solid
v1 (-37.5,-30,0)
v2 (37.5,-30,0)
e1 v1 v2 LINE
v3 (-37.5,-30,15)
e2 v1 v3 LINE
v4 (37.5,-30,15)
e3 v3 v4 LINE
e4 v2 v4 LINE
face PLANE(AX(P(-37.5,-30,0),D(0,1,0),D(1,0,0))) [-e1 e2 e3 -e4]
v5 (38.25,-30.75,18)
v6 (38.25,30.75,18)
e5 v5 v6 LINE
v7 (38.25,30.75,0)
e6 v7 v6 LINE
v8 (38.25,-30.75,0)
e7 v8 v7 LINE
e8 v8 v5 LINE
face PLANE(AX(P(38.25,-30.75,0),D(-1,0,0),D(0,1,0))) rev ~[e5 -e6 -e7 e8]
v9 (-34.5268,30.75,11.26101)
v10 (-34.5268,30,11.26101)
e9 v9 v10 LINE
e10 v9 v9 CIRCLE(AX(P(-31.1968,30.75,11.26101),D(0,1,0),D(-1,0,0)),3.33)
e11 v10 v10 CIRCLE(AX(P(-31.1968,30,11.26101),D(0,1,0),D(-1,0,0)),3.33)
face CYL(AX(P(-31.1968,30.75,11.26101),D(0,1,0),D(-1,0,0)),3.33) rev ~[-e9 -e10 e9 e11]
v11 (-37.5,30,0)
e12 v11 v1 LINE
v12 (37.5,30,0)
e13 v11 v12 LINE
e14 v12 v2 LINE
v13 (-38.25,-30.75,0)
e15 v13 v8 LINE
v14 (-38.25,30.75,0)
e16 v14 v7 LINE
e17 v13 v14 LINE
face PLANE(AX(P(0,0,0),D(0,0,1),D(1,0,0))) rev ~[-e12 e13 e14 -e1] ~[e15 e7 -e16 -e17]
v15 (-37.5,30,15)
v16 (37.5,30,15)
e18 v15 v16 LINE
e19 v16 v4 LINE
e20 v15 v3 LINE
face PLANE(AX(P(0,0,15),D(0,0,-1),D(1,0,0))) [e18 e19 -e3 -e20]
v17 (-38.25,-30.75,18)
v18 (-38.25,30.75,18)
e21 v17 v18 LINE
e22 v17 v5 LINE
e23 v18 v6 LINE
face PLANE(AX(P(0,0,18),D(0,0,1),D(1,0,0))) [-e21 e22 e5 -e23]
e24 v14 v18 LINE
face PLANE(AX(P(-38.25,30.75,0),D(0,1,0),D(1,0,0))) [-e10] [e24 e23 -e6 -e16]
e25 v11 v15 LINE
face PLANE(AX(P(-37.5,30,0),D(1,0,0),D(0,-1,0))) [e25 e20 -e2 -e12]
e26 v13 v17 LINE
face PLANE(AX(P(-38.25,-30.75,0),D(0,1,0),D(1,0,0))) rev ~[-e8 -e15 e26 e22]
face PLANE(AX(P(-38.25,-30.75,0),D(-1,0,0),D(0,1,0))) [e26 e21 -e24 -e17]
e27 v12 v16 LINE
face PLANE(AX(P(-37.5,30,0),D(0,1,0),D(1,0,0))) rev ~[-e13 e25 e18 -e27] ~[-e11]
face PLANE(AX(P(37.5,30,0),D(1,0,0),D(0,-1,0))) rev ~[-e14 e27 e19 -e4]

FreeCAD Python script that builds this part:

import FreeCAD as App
import Part
import Sketcher

V = App.Vector


def add_polygon(sketch, points):
    """Adds a closed chain of lines whose ends are joined by coincident constraints."""
    first, n = sketch.GeometryCount, len(points)
    for a, b in zip(points, points[1:] + points[:1]):
        sketch.addGeometry(Part.LineSegment(App.Vector(*a, 0), App.Vector(*b, 0)), False)
    for i in range(n):
        sketch.addConstraint(Sketcher.Constraint("Coincident", first + i, 2, first + (i + 1) % n, 1))

doc = App.newDocument("Part")
params = doc.addObject("Spreadsheet::Sheet", "Params")
for row, (alias, value) in enumerate([
    ("sketch1_width", "76.5 mm"),
    ("sketch1_height", "61.5 mm"),
    ("pad1_length", "18 mm"),
    ("sketch2_width", "75 mm"),
    ("sketch2_height", "60 mm"),
    ("pocket1_length", "15 mm"),
    ("sketch3_diameter", "6.66 mm"),
    ("pocket2_length", "5 mm"),
], start=1):
    params.set(f"A{row}", alias)
    params.set(f"B{row}", "=" + value)
    params.setAlias(f"B{row}", alias)

body = doc.addObject("PartDesign::Body", "Body")

sketch1 = doc.addObject("Sketcher::SketchObject", "Sketch")
body.addObject(sketch1)
sketch1.AttachmentSupport = (doc.XY_Plane, [""])
sketch1.MapMode = "FlatFace"
add_polygon(sketch1, [(-38.25, 30.75), (-38.25, -30.75), (38.25, -30.75), (38.25, 30.75)])
sketch1.addConstraint([
    Sketcher.Constraint("Vertical", 0),
    Sketcher.Constraint("Horizontal", 1),
    Sketcher.Constraint("Vertical", 2),
    Sketcher.Constraint("Horizontal", 3),
    Sketcher.Constraint("Symmetric", 0, 2, 2, 2, -1, 1),
    Sketcher.Constraint("DistanceX", 1, 1, 1, 2, 76.5),
    Sketcher.Constraint("DistanceY", 0, 2, 0, 1, 61.5),
])
sketch1.setExpression("Constraints[9]", "Params.sketch1_width")
sketch1.setExpression("Constraints[10]", "Params.sketch1_height")
pad1 = doc.addObject("PartDesign::Pad", "Pad")
body.addObject(pad1)
pad1.Profile = sketch1
pad1.setExpression("Length", "Params.pad1_length")

sketch2 = doc.addObject("Sketcher::SketchObject", "Sketch001")
body.addObject(sketch2)
sketch2.AttachmentSupport = (doc.XY_Plane, [""])
sketch2.MapMode = "FlatFace"
add_polygon(sketch2, [(-37.5, -30), (-37.5, 30), (37.5, 30), (37.5, -30)])
sketch2.addConstraint([
    Sketcher.Constraint("Vertical", 0),
    Sketcher.Constraint("Horizontal", 1),
    Sketcher.Constraint("Vertical", 2),
    Sketcher.Constraint("Horizontal", 3),
    Sketcher.Constraint("Symmetric", 0, 2, 2, 2, -1, 1),
    Sketcher.Constraint("DistanceX", 1, 1, 1, 2, 75.0),
    Sketcher.Constraint("DistanceY", 0, 1, 0, 2, 60.0),
])
sketch2.setExpression("Constraints[9]", "Params.sketch2_width")
sketch2.setExpression("Constraints[10]", "Params.sketch2_height")
pocket1 = doc.addObject("PartDesign::Pocket", "Pocket")
body.addObject(pocket1)
pocket1.Profile = sketch2
pocket1.setExpression("Length", "Params.pocket1_length")
pocket1.Reversed = True

sketch3 = doc.addObject("Sketcher::SketchObject", "Sketch002")
body.addObject(sketch3)
sketch3.AttachmentSupport = (doc.XZ_Plane, [""])
sketch3.MapMode = "FlatFace"
sketch3.AttachmentOffset = App.Placement(V(0, 0, -30.75), App.Rotation())
sketch3.addGeometry(Part.Circle(V(-31.1968, 11.26101, 0), V(0, 0, 1), 3.33), False)
sketch3.addConstraint([
    Sketcher.Constraint("Diameter", 0, 6.66),
    Sketcher.Constraint("DistanceX", 0, 3, -1, 1, 31.1968),
    Sketcher.Constraint("DistanceY", -1, 1, 0, 3, 11.26101),
])
sketch3.setExpression("Constraints[0]", "Params.sketch3_diameter")
pocket2 = doc.addObject("PartDesign::Pocket", "Pocket001")
body.addObject(pocket2)
pocket2.Profile = sketch3
pocket2.setExpression("Length", "Params.pocket2_length")
pocket2.Reversed = True

doc.recompute()
